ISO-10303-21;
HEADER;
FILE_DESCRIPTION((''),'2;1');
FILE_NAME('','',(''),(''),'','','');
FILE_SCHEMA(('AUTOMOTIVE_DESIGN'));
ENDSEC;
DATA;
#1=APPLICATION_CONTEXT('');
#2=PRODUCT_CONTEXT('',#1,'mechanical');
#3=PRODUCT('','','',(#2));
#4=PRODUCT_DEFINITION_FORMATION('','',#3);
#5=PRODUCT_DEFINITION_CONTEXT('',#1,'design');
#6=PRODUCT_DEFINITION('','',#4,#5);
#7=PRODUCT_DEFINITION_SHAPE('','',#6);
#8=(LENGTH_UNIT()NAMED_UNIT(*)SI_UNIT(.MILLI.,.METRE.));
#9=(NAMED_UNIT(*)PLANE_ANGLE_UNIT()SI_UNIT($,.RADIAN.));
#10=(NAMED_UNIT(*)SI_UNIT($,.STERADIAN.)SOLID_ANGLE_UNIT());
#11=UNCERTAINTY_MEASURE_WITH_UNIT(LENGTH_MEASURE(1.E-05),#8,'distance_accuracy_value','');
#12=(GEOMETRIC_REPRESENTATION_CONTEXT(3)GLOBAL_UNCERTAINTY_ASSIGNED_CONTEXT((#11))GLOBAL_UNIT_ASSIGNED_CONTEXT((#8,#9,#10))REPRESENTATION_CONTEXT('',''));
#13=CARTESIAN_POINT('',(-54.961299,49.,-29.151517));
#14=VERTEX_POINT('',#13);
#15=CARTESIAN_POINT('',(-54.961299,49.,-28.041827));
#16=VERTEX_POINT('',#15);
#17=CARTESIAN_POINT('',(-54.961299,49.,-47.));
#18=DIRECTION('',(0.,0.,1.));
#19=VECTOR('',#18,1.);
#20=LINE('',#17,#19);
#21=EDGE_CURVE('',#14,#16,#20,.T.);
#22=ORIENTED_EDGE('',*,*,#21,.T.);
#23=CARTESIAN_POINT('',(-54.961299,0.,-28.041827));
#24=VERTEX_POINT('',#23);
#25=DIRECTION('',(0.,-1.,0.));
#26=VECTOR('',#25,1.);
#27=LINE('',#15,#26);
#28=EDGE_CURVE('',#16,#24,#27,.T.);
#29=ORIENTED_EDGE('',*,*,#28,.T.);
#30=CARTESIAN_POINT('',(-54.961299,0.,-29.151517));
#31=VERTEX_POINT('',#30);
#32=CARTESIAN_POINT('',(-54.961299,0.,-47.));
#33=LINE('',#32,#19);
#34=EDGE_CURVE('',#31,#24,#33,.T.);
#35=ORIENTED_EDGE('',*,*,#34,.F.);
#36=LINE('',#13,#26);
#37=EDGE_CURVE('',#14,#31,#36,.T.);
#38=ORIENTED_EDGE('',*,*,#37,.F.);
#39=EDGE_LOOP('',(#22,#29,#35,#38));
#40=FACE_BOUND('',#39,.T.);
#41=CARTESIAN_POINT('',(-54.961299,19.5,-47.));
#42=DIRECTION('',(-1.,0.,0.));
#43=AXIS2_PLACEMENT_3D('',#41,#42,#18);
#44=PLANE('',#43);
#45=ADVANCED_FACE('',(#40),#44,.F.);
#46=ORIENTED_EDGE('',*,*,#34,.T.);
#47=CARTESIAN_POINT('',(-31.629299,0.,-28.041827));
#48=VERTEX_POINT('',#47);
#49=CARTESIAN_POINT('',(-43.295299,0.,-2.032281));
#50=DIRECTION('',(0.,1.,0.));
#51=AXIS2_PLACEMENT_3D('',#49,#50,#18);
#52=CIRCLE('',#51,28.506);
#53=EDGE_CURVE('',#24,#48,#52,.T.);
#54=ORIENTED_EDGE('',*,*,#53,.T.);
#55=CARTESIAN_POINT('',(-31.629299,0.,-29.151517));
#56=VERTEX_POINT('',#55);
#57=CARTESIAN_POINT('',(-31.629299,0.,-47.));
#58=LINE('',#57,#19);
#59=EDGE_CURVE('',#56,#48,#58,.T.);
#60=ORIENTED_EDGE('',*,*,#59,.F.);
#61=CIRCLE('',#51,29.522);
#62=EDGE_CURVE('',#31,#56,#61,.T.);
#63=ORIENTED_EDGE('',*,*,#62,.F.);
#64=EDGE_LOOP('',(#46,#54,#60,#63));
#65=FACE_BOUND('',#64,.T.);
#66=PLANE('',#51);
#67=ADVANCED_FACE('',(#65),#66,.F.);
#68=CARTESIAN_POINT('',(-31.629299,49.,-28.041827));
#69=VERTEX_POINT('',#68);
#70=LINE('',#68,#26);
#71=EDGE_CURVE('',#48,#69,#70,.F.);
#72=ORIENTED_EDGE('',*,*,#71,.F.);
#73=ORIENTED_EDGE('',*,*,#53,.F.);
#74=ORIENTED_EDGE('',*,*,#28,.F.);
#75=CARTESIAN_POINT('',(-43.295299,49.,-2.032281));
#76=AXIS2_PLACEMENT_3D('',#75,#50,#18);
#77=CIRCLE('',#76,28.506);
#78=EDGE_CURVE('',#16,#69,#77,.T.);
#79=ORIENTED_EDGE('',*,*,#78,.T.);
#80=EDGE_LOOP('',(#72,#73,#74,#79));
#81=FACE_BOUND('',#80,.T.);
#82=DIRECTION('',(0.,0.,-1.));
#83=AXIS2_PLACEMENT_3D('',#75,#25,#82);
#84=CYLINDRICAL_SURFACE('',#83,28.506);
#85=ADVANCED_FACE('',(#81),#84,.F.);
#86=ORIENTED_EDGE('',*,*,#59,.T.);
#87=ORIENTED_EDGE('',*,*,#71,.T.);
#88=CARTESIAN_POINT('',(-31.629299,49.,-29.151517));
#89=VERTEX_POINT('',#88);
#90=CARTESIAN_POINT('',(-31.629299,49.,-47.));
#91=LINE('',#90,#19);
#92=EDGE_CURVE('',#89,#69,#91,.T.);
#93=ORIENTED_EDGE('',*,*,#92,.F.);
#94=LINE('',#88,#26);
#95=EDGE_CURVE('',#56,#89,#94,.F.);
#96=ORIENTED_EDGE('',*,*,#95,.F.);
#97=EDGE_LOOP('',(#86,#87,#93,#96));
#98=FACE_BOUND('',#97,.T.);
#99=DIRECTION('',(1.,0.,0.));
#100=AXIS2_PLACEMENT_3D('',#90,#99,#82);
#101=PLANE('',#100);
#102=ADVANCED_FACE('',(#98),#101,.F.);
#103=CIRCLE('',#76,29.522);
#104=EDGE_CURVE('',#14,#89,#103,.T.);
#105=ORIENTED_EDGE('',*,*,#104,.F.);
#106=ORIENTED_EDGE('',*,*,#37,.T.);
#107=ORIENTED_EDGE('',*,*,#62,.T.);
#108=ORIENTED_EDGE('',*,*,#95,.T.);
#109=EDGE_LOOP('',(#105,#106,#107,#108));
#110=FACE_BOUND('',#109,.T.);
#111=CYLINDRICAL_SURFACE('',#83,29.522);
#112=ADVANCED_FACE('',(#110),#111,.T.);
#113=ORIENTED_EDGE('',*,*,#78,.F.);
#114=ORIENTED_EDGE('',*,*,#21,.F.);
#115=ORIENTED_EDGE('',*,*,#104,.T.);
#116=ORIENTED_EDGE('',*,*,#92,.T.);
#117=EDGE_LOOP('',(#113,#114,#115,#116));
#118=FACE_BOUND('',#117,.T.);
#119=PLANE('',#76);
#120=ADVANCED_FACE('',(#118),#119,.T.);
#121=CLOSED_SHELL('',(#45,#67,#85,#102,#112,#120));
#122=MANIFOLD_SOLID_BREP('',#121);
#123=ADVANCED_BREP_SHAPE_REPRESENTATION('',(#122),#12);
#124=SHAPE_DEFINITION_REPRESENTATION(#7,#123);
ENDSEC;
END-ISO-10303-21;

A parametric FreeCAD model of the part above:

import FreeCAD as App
import Part
import Sketcher

V = App.Vector
Q = App.Units.Quantity


def add_polygon(sketch, points):
    """Adds a closed chain of lines whose ends are joined by coincident constraints."""
    first, n = sketch.GeometryCount, len(points)
    for a, b in zip(points, points[1:] + points[:1]):
        sketch.addGeometry(Part.LineSegment(App.Vector(*a, 0), App.Vector(*b, 0)), False)
    for i in range(n):
        sketch.addConstraint(Sketcher.Constraint("Coincident", first + i, 2, first + (i + 1) % n, 1))

doc = App.newDocument("Part")
body = doc.addObject("PartDesign::Body", "Body")

# Sketch on XZ plane
sketch1 = body.newObject("Sketcher::SketchObject", "Sketch")
sketch1.AttachmentSupport = (doc.getObject("XZ_Plane"), [""])
sketch1.MapMode = "FlatFace"
sketch1.addGeometry([
    Part.Circle(V(-43, -2, 0), V(0, 0, 1), 30),
    Part.Circle(V(-43, -2, 0), V(0, 0, 1), 29),
], False)
sketch1.addConstraint([
    Sketcher.Constraint("Coincident", 1, 3, 0, 3),
    Sketcher.Constraint("Diameter", 0, Q("59.044 mm")),
    Sketcher.Constraint("Diameter", 1, Q("57.012 mm")),
    Sketcher.Constraint("DistanceX", 0, 3, -1, 1, Q("43.295299 mm")),
    Sketcher.Constraint("DistanceY", 0, 3, -1, 1, Q("2.032281 mm")),
])
pad1 = body.newObject("PartDesign::Pad", "Pad")
pad1.Profile = sketch1
pad1.Length = 49
pad1.Reversed = True

# Sketch on XY plane
sketch2 = body.newObject("Sketcher::SketchObject", "Sketch001")
sketch2.AttachmentSupport = (doc.getObject("XY_Plane"), [""])
sketch2.MapMode = "FlatFace"
add_polygon(sketch2, [(-55, 49), (-55, 0), (-32, 0), (-32, 49)])  # lines 0-3
sketch2.addConstraint([
    Sketcher.Constraint("Vertical", 0),
    Sketcher.Constraint("Horizontal", 1),
    Sketcher.Constraint("Vertical", 2),
    Sketcher.Constraint("Horizontal", 3),
    Sketcher.Constraint("PointOnObject", 0, 2, -1),
    Sketcher.Constraint("DistanceY", 0, 2, 0, 1, Q("49 mm")),
    Sketcher.Constraint("DistanceX", 1, 1, 1, 2, Q("23.332 mm")),
    Sketcher.Constraint("DistanceX", 0, 2, -1, 1, Q("54.961299 mm")),
])
pocket1 = body.newObject("PartDesign::Pocket", "Pocket")
pocket1.Profile = sketch2
pocket1.Length = 47

doc.recompute()
